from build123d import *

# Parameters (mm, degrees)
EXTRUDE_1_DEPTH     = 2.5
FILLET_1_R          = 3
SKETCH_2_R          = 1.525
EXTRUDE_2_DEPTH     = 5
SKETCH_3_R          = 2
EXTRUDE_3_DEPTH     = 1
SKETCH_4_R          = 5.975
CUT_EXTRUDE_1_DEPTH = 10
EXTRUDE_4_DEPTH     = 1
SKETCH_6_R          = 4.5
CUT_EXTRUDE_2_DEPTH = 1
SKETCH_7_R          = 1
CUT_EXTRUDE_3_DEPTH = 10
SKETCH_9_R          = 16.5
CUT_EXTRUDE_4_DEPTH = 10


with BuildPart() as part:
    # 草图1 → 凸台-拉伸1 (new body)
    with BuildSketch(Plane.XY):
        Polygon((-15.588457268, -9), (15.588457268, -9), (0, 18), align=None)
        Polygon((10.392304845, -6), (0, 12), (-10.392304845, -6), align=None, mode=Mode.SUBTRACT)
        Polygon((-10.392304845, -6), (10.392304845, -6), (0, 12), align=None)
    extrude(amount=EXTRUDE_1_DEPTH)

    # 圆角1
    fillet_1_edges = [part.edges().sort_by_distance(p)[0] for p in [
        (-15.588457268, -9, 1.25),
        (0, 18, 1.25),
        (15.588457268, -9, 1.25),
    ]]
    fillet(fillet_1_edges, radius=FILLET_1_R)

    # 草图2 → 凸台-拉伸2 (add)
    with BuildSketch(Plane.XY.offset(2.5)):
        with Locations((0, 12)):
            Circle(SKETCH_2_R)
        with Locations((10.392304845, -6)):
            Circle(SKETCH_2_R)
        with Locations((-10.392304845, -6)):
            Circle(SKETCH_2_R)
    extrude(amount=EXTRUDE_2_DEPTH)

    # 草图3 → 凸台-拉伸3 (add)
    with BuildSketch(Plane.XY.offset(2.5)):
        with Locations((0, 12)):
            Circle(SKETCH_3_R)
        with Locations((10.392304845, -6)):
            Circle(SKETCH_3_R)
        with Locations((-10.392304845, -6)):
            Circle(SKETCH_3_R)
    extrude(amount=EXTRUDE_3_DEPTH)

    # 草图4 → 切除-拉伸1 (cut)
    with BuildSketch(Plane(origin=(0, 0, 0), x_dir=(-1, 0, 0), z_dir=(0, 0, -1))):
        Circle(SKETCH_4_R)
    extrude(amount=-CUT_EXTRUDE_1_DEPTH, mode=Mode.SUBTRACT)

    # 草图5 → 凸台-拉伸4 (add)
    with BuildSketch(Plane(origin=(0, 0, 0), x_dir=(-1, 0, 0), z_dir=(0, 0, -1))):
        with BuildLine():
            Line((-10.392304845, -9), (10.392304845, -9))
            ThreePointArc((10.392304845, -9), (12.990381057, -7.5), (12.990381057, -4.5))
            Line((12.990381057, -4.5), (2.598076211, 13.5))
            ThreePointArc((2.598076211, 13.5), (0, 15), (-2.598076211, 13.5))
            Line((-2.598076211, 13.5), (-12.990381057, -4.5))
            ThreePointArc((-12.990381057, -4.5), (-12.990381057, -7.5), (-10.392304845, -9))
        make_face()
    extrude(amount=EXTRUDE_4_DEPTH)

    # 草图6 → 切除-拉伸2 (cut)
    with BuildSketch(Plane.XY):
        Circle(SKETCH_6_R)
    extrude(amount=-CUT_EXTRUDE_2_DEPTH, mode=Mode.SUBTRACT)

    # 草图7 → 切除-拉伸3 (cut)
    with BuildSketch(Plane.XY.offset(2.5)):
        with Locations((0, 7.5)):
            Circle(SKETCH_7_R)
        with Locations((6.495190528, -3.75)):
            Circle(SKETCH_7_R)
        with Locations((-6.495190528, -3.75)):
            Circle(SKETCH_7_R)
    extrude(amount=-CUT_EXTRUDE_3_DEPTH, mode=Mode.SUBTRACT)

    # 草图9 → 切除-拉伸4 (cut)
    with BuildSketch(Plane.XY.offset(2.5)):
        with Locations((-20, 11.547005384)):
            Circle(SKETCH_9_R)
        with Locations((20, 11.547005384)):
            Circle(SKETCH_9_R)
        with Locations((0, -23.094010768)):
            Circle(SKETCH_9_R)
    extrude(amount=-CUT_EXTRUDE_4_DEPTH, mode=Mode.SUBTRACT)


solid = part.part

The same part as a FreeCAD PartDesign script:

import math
import FreeCAD as App
import Part
import Sketcher

V = App.Vector
Q = App.Units.Quantity


def edges_at(feature, points):
    """Names of the edges that pass closest to the given points."""
    edges = feature.Shape.Edges
    near = lambda p: min(range(len(edges)), key=lambda i: edges[i].distToShape(Part.Vertex(*p))[0])
    return sorted({f"Edge{near(p) + 1}" for p in points})


def add_polygon(sketch, points):
    """Adds a closed chain of lines whose ends are joined by coincident constraints."""
    first, n = sketch.GeometryCount, len(points)
    for a, b in zip(points, points[1:] + points[:1]):
        sketch.addGeometry(Part.LineSegment(App.Vector(*a, 0), App.Vector(*b, 0)), False)
    for i in range(n):
        sketch.addConstraint(Sketcher.Constraint("Coincident", first + i, 2, first + (i + 1) % n, 1))

doc = App.newDocument("Part")
body = doc.addObject("PartDesign::Body", "Body")

# Sketch on XY plane
sketch1 = body.newObject("Sketcher::SketchObject", "Sketch")
sketch1.AttachmentSupport = (doc.getObject("XY_Plane"), [""])
sketch1.MapMode = "FlatFace"
add_polygon(sketch1, [(-16, -9), (16, -9), (0, 18)])  # lines 0-2
sketch1.addConstraint(Sketcher.Constraint("Horizontal", 0))
sketch1.addConstraint(Sketcher.Constraint("PointOnObject", 1, 2, -2))
sketch1.addConstraint(Sketcher.Constraint("Equal", 1, 2))
sketch1.addConstraint(Sketcher.Constraint("Angle", 1, Q("120 deg")))
sketch1.addConstraint(Sketcher.Constraint("DistanceY", 0, 2, -1, 1, Q("9 mm")))
sketch1.addConstraint(Sketcher.Constraint("DistanceY", -1, 1, 1, 2, Q("18 mm")))
pad1 = body.newObject("PartDesign::Pad", "Pad")
pad1.Profile = sketch1
pad1.Length = 2.5
doc.recompute()

fillet = body.newObject("PartDesign::Fillet", "Fillet")
fillet.Base = (pad1, edges_at(pad1, [(-15.588, -9, 1.25), (0, 18, 1.25), (15.588, -9, 1.25)]))
fillet.Radius = 3

# Sketch on XY plane
sketch2 = body.newObject("Sketcher::SketchObject", "Sketch001")
sketch2.AttachmentSupport = (doc.getObject("XY_Plane"), [""])
sketch2.MapMode = "FlatFace"
sketch2.AttachmentOffset = App.Placement(V(0, 0, 2.5), App.Rotation())
sketch2.addGeometry(Part.Circle(V(0, 12, 0), V(0, 0, 1), 1.5), False)
sketch2.addGeometry(Part.Circle(V(10.4, -6, 0), V(0, 0, 1), 1.5), False)
sketch2.addGeometry(Part.Circle(V(-10.4, -6, 0), V(0, 0, 1), 1.5), False)
sketch2.addConstraint(Sketcher.Constraint("Equal", 0, 1))
sketch2.addConstraint(Sketcher.Constraint("Equal", 1, 2))
sketch2.addConstraint(Sketcher.Constraint("Symmetric", 1, 3, 2, 3, -2))
sketch2.addConstraint(Sketcher.Constraint("PointOnObject", 0, 3, -2))
sketch2.addConstraint(Sketcher.Constraint("Diameter", 0, Q("3.05 mm")))
sketch2.addConstraint(Sketcher.Constraint("DistanceY", -1, 1, 0, 3, Q("12 mm")))
sketch2.addConstraint(Sketcher.Constraint("DistanceY", 1, 3, -1, 1, Q("6 mm")))
sketch2.addConstraint(Sketcher.Constraint("DistanceX", 2, 3, 1, 3, Q("20.78461 mm")))
pad2 = body.newObject("PartDesign::Pad", "Pad001")
pad2.Profile = sketch2
pad2.Length = 5

# Sketch on XY plane
sketch3 = body.newObject("Sketcher::SketchObject", "Sketch002")
sketch3.AttachmentSupport = (doc.getObject("XY_Plane"), [""])
sketch3.MapMode = "FlatFace"
sketch3.AttachmentOffset = App.Placement(V(0, 0, 2.5), App.Rotation())
sketch3.addGeometry(Part.Circle(V(0, 12, 0), V(0, 0, 1), 2), False)
sketch3.addGeometry(Part.Circle(V(10.4, -6, 0), V(0, 0, 1), 2), False)
sketch3.addGeometry(Part.Circle(V(-10.4, -6, 0), V(0, 0, 1), 2), False)
sketch3.addConstraint(Sketcher.Constraint("Equal", 0, 1))
sketch3.addConstraint(Sketcher.Constraint("Equal", 1, 2))
sketch3.addConstraint(Sketcher.Constraint("Symmetric", 1, 3, 2, 3, -2))
sketch3.addConstraint(Sketcher.Constraint("PointOnObject", 0, 3, -2))
sketch3.addConstraint(Sketcher.Constraint("Diameter", 0, Q("4 mm")))
sketch3.addConstraint(Sketcher.Constraint("DistanceY", -1, 1, 0, 3, Q("12 mm")))
sketch3.addConstraint(Sketcher.Constraint("DistanceY", 1, 3, -1, 1, Q("6 mm")))
sketch3.addConstraint(Sketcher.Constraint("DistanceX", 2, 3, 1, 3, Q("20.78461 mm")))
pad3 = body.newObject("PartDesign::Pad", "Pad002")
pad3.Profile = sketch3
pad3.Length = 1

# Sketch on XY plane
sketch4 = body.newObject("Sketcher::SketchObject", "Sketch003")
sketch4.AttachmentSupport = (doc.getObject("XY_Plane"), [""])
sketch4.MapMode = "FlatFace"
sketch4.addGeometry(Part.Circle(V(0, 0, 0), V(0, 0, 1), 6), False)
sketch4.addConstraint(Sketcher.Constraint("Coincident", 0, 3, -1, 1))
sketch4.addConstraint(Sketcher.Constraint("Diameter", 0, Q("11.95 mm")))
pocket1 = body.newObject("PartDesign::Pocket", "Pocket")
pocket1.Profile = sketch4
pocket1.Length = 10
pocket1.Reversed = True

# Sketch on XY plane
sketch5 = body.newObject("Sketcher::SketchObject", "Sketch004")
sketch5.AttachmentSupport = (doc.getObject("XY_Plane"), [""])
sketch5.MapMode = "FlatFace"
sketch5.addGeometry(Part.LineSegment(V(10.4, -9, 0), V(-10.4, -9, 0)), False)
sketch5.addGeometry(Part.ArcOfCircle(Part.Circle(V(-10.4, -6, 0), V(0, 0, 1), 3), math.radians(150), math.radians(270)), False)
sketch5.addGeometry(Part.LineSegment(V(-13, -4.5, 0), V(-2.6, 13.5, 0)), False)
sketch5.addGeometry(Part.ArcOfCircle(Part.Circle(V(0, 12, 0), V(0, 0, 1), 3), math.radians(30), math.radians(150)), False)
sketch5.addGeometry(Part.LineSegment(V(2.6, 13.5, 0), V(13, -4.5, 0)), False)
sketch5.addGeometry(Part.ArcOfCircle(Part.Circle(V(10.4, -6, 0), V(0, 0, 1), 3), math.radians(-90), math.radians(30)), False)
sketch5.addConstraint(Sketcher.Constraint("Tangent", 0, 2, 1, 2))
sketch5.addConstraint(Sketcher.Constraint("Tangent", 1, 1, 2, 1))
sketch5.addConstraint(Sketcher.Constraint("Tangent", 2, 2, 3, 2))
sketch5.addConstraint(Sketcher.Constraint("Tangent", 3, 1, 4, 1))
sketch5.addConstraint(Sketcher.Constraint("Tangent", 4, 2, 5, 2))
sketch5.addConstraint(Sketcher.Constraint("Tangent", 5, 1, 0, 1))
sketch5.addConstraint(Sketcher.Constraint("Horizontal", 0))
sketch5.addConstraint(Sketcher.Constraint("Equal", 1, 3))
sketch5.addConstraint(Sketcher.Constraint("Equal", 3, 5))
sketch5.addConstraint(Sketcher.Constraint("Symmetric", 2, 2, 3, 1, -2))
sketch5.addConstraint(Sketcher.Constraint("Radius", 1, Q("3 mm")))
sketch5.addConstraint(Sketcher.Constraint("Angle", 2, Q("60 deg")))
sketch5.addConstraint(Sketcher.Constraint("DistanceY", 1, 3, -1, 1, Q("6 mm")))
sketch5.addConstraint(Sketcher.Constraint("DistanceY", -1, 1, 3, 3, Q("12 mm")))
pad4 = body.newObject("PartDesign::Pad", "Pad003")
pad4.Profile = sketch5
pad4.Length = 1
pad4.Reversed = True

# Sketch on XY plane
sketch6 = body.newObject("Sketcher::SketchObject", "Sketch005")
sketch6.AttachmentSupport = (doc.getObject("XY_Plane"), [""])
sketch6.MapMode = "FlatFace"
sketch6.addGeometry(Part.Circle(V(0, 0, 0), V(0, 0, 1), 4.5), False)
sketch6.addConstraint(Sketcher.Constraint("Coincident", 0, 3, -1, 1))
sketch6.addConstraint(Sketcher.Constraint("Diameter", 0, Q("9 mm")))
pocket2 = body.newObject("PartDesign::Pocket", "Pocket001")
pocket2.Profile = sketch6
pocket2.Length = 1

# Sketch on XY plane
sketch7 = body.newObject("Sketcher::SketchObject", "Sketch006")
sketch7.AttachmentSupport = (doc.getObject("XY_Plane"), [""])
sketch7.MapMode = "FlatFace"
sketch7.AttachmentOffset = App.Placement(V(0, 0, 2.5), App.Rotation())
sketch7.addGeometry(Part.Circle(V(0, 7.5, 0), V(0, 0, 1), 1), False)
sketch7.addGeometry(Part.Circle(V(6.5, -3.8, 0), V(0, 0, 1), 1), False)
sketch7.addGeometry(Part.Circle(V(-6.5, -3.8, 0), V(0, 0, 1), 1), False)
sketch7.addConstraint(Sketcher.Constraint("Equal", 0, 1))
sketch7.addConstraint(Sketcher.Constraint("Equal", 1, 2))
sketch7.addConstraint(Sketcher.Constraint("Symmetric", 1, 3, 2, 3, -2))
sketch7.addConstraint(Sketcher.Constraint("PointOnObject", 0, 3, -2))
sketch7.addConstraint(Sketcher.Constraint("Diameter", 0, Q("2 mm")))
sketch7.addConstraint(Sketcher.Constraint("DistanceY", -1, 1, 0, 3, Q("7.5 mm")))
sketch7.addConstraint(Sketcher.Constraint("DistanceY", 1, 3, -1, 1, Q("3.75 mm")))
sketch7.addConstraint(Sketcher.Constraint("DistanceX", -1, 1, 1, 3, Q("6.495191 mm")))
pocket3 = body.newObject("PartDesign::Pocket", "Pocket002")
pocket3.Profile = sketch7
pocket3.Length = 10

# Sketch on XY plane
sketch8 = body.newObject("Sketcher::SketchObject", "Sketch007")
sketch8.AttachmentSupport = (doc.getObject("XY_Plane"), [""])
sketch8.MapMode = "FlatFace"
sketch8.AttachmentOffset = App.Placement(V(0, 0, 2.5), App.Rotation())
sketch8.addGeometry(Part.Circle(V(-20, 12, 0), V(0, 0, 1), 16), False)
sketch8.addGeometry(Part.Circle(V(20, 12, 0), V(0, 0, 1), 16), False)
sketch8.addGeometry(Part.Circle(V(0, -23, 0), V(0, 0, 1), 16), False)
sketch8.addConstraint(Sketcher.Constraint("Equal", 0, 1))
sketch8.addConstraint(Sketcher.Constraint("Equal", 1, 2))
sketch8.addConstraint(Sketcher.Constraint("Symmetric", 0, 3, 1, 3, -2))
sketch8.addConstraint(Sketcher.Constraint("PointOnObject", 2, 3, -2))
sketch8.addConstraint(Sketcher.Constraint("Diameter", 0, Q("33 mm")))
sketch8.addConstraint(Sketcher.Constraint("DistanceX", 0, 3, -1, 1, Q("20 mm")))
sketch8.addConstraint(Sketcher.Constraint("DistanceY", 2, 3, -1, 1, Q("23.094011 mm")))
sketch8.addConstraint(Sketcher.Constraint("DistanceY", -1, 1, 0, 3, Q("11.547005 mm")))
pocket4 = body.newObject("PartDesign::Pocket", "Pocket003")
pocket4.Profile = sketch8
pocket4.Length = 10

doc.recompute()
